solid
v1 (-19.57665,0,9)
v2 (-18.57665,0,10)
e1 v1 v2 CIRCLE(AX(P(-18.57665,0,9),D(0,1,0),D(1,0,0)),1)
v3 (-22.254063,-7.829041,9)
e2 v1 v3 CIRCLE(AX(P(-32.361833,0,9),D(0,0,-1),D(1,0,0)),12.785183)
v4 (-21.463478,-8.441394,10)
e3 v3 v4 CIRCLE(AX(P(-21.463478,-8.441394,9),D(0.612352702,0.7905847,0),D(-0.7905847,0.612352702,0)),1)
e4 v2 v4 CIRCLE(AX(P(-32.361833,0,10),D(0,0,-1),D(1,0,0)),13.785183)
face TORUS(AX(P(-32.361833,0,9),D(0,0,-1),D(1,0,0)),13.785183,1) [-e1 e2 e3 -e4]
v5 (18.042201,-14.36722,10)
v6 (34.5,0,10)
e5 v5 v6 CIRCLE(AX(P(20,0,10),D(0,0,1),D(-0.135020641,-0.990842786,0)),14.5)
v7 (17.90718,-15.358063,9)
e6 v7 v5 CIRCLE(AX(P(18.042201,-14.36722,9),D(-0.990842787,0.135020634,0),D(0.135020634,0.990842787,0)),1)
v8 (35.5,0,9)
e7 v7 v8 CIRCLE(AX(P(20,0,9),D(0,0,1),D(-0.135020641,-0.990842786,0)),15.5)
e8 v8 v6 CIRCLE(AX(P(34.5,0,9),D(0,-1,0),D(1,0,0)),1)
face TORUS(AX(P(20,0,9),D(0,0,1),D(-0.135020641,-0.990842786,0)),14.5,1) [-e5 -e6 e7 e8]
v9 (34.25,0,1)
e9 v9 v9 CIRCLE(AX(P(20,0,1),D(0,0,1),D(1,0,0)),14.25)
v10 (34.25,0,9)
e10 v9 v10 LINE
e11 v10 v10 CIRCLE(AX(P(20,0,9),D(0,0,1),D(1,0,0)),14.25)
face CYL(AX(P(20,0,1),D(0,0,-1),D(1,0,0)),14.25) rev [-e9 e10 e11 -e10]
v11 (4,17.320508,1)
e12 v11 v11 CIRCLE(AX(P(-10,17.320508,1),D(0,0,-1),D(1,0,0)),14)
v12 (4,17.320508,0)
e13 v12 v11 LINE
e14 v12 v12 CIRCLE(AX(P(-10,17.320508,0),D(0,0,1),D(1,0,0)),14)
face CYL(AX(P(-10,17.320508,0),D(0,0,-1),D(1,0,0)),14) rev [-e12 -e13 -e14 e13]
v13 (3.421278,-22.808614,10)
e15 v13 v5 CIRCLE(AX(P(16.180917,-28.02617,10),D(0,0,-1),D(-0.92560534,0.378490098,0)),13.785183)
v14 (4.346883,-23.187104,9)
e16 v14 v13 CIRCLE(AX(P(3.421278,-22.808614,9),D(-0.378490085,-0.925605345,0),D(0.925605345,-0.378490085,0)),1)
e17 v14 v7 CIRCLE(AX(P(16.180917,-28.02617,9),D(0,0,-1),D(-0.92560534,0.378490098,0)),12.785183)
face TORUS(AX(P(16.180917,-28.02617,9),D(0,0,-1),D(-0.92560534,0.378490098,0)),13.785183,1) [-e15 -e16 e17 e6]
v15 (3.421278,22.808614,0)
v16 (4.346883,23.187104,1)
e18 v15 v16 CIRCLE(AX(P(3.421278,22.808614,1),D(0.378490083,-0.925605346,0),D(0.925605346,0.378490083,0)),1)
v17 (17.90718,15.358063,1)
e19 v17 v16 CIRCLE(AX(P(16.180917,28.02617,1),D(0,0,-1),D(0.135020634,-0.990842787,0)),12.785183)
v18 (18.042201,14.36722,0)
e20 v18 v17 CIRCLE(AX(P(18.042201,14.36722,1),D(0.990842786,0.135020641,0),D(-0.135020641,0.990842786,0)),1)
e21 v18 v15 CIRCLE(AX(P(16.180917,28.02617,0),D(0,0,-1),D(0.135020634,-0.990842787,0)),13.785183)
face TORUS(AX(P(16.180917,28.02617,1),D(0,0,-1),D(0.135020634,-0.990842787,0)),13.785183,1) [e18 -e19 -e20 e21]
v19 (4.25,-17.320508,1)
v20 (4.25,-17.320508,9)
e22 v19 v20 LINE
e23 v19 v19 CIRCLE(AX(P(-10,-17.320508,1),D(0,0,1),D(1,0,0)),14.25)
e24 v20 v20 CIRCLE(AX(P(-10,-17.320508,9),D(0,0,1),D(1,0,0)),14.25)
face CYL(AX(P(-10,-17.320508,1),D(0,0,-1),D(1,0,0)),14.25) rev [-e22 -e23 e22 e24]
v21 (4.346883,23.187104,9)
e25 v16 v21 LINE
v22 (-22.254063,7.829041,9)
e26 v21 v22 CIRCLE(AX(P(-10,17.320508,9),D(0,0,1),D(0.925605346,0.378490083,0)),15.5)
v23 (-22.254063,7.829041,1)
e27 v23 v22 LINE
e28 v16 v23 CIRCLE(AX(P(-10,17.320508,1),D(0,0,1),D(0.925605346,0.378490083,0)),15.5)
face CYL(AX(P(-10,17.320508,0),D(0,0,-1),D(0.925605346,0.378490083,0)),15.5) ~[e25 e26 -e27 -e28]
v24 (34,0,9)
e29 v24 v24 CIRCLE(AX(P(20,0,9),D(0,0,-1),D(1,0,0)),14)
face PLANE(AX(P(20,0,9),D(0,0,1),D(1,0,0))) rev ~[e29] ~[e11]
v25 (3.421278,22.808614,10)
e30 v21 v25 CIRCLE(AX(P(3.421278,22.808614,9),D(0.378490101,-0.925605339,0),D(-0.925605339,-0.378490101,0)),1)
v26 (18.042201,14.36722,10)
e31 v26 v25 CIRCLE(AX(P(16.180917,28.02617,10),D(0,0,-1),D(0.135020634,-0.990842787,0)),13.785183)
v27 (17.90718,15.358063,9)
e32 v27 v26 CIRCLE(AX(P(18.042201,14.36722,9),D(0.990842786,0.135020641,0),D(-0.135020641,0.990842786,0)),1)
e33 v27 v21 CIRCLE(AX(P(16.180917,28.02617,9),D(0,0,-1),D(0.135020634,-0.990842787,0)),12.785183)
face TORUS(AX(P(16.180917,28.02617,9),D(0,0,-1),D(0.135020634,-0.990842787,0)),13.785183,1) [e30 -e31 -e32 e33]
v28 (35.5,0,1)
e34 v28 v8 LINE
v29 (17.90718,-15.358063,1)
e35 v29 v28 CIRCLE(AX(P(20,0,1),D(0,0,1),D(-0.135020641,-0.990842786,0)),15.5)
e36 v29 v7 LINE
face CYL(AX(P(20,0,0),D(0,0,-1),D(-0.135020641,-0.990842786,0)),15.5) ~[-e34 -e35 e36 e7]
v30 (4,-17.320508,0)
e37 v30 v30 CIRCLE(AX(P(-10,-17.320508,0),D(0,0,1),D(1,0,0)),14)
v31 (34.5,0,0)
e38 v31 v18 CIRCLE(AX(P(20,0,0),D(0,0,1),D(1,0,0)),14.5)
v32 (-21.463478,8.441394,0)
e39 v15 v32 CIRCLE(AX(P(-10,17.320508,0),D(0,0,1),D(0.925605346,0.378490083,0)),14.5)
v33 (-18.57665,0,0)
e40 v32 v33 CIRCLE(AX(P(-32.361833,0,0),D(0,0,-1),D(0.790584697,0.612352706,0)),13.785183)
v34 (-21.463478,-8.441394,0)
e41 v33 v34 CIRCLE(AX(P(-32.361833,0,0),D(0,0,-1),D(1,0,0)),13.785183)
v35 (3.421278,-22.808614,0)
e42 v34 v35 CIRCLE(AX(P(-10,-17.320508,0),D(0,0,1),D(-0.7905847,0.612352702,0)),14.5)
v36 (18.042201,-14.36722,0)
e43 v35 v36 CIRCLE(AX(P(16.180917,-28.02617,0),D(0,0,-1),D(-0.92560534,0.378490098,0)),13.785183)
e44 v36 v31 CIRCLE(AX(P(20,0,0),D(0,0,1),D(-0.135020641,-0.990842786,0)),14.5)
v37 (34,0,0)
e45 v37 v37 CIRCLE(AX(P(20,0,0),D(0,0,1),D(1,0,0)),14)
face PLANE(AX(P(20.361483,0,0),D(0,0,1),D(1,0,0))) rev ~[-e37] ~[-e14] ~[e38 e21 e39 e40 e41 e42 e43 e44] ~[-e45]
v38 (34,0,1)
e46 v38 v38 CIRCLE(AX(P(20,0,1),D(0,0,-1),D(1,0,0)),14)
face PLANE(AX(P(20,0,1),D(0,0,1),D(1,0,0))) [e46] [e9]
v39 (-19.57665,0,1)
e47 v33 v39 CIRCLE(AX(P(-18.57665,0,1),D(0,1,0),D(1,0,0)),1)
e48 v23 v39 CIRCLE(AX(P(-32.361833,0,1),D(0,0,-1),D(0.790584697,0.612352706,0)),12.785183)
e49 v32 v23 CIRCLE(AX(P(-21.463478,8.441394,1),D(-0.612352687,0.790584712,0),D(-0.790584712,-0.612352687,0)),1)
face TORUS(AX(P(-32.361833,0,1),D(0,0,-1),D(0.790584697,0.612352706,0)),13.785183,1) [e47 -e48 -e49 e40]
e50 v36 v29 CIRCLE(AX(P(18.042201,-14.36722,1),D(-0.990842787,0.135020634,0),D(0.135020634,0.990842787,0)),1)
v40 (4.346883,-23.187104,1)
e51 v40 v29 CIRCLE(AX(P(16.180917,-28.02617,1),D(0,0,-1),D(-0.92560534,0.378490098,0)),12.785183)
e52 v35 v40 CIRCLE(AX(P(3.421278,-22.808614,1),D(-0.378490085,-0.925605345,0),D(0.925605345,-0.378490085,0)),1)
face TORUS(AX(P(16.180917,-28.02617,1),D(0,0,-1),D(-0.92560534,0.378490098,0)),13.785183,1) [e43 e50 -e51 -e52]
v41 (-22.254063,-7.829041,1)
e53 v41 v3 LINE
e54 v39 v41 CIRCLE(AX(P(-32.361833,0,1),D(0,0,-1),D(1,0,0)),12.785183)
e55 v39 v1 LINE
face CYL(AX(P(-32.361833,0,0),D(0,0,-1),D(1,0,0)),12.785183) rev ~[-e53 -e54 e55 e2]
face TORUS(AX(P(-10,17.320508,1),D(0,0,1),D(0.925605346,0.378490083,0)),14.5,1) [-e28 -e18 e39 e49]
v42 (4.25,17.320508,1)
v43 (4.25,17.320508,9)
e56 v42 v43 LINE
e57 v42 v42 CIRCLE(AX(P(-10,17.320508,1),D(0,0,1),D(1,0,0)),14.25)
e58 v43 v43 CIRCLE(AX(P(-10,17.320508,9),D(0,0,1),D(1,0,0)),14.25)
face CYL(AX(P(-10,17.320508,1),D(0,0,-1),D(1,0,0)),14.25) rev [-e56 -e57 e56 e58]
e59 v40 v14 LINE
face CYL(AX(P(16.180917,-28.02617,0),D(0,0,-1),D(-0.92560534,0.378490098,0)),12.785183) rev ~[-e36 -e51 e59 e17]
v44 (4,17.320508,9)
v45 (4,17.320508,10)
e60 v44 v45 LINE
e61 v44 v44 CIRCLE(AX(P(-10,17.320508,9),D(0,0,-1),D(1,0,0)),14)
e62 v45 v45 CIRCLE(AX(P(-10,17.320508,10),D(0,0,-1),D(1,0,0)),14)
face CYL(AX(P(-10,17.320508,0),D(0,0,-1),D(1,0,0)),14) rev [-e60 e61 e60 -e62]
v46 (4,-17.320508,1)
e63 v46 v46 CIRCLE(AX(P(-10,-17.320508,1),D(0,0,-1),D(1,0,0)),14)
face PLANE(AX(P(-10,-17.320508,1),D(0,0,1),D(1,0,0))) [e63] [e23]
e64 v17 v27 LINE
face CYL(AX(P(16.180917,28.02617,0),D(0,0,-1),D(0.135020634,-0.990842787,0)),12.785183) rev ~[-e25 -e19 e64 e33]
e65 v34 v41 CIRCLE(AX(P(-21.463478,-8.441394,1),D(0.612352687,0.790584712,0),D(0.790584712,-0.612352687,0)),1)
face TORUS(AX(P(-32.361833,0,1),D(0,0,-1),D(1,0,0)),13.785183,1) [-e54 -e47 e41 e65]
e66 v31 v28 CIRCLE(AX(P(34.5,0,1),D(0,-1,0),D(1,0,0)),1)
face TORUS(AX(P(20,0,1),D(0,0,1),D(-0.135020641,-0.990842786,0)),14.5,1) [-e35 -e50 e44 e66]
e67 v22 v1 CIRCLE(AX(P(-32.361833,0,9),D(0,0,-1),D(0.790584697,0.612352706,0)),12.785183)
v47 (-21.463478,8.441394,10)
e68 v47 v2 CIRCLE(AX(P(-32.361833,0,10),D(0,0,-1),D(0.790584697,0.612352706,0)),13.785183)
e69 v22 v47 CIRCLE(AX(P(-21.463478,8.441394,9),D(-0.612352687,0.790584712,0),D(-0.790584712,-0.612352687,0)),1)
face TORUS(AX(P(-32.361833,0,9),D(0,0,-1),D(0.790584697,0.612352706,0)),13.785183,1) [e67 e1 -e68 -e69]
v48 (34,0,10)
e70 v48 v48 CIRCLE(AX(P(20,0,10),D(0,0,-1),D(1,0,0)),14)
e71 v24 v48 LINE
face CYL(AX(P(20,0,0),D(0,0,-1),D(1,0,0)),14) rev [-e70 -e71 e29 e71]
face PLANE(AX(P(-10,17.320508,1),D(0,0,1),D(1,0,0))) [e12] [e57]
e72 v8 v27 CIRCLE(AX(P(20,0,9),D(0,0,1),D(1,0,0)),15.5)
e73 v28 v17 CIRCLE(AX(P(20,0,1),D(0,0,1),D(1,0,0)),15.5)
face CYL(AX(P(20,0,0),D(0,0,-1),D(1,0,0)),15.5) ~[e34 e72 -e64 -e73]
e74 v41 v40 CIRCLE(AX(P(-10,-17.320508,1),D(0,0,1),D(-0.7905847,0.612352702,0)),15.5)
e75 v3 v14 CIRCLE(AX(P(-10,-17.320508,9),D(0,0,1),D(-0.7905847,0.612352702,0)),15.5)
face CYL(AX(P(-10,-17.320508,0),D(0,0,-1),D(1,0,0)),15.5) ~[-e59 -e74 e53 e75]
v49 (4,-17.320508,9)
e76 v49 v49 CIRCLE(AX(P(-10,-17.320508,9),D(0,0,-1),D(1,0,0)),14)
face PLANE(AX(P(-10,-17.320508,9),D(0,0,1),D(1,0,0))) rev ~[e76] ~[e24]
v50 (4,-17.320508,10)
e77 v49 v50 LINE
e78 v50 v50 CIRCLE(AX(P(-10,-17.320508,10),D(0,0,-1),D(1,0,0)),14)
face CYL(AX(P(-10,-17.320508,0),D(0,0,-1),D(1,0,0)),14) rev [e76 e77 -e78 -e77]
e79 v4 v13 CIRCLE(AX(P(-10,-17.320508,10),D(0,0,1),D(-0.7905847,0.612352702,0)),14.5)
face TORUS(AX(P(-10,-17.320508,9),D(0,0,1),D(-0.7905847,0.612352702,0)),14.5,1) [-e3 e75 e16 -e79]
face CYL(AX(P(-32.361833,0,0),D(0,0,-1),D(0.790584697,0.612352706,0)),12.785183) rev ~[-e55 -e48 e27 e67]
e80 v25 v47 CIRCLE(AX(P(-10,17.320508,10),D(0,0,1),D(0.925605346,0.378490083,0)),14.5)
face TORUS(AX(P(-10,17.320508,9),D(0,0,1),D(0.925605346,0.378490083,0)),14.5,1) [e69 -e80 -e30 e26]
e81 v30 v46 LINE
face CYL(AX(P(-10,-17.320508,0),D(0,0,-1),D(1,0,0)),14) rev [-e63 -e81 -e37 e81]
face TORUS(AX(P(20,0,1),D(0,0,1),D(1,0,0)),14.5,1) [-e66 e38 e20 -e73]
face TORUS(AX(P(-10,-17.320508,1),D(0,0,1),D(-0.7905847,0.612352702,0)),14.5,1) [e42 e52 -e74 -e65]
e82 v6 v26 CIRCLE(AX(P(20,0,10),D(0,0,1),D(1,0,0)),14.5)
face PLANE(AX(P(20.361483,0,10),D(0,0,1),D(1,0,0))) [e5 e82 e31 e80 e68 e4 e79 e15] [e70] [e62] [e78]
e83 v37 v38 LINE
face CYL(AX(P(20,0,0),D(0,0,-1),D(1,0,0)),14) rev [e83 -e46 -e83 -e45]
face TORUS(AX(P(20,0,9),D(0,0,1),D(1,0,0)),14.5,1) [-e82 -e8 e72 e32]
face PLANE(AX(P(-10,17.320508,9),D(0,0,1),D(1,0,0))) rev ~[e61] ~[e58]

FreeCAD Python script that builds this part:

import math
import FreeCAD as App
import Part
import Sketcher

V = App.Vector
Q = App.Units.Quantity


def edges_at(feature, points):
    """Names of the edges that pass closest to the given points."""
    edges = feature.Shape.Edges
    near = lambda p: min(range(len(edges)), key=lambda i: edges[i].distToShape(Part.Vertex(*p))[0])
    return sorted({f"Edge{near(p) + 1}" for p in points})

doc = App.newDocument("Part")
body = doc.addObject("PartDesign::Body", "Body")

sketch1 = body.newObject("Sketcher::SketchObject", "Sketch")
sketch1.AttachmentSupport = (doc.getObject("XY_Plane"), [""])
sketch1.MapMode = "FlatFace"
sketch1.addGeometry(Part.ArcOfCircle(Part.Circle(V(16, -28, 0), V(0, 0, 1), 13), math.radians(82), math.radians(158)), False)
sketch1.addGeometry(Part.ArcOfCircle(Part.Circle(V(20, 0, 0), V(0, 0, 1), 16), math.radians(-98), math.radians(0)), False)
sketch1.addGeometry(Part.ArcOfCircle(Part.Circle(V(20, 0, 0), V(0, 0, 1), 16), math.radians(0), math.radians(98)), False)
sketch1.addGeometry(Part.ArcOfCircle(Part.Circle(V(16, 28, 0), V(0, 0, 1), 13), math.radians(-158), math.radians(-82)), False)
sketch1.addGeometry(Part.ArcOfCircle(Part.Circle(V(-10, 17, 0), V(0, 0, 1), 16), math.radians(22), math.radians(218)), False)
sketch1.addGeometry(Part.ArcOfCircle(Part.Circle(V(-32, 0, 0), V(0, 0, 1), 13), math.radians(0), math.radians(38)), False)
sketch1.addGeometry(Part.ArcOfCircle(Part.Circle(V(-32, 0, 0), V(0, 0, 1), 13), math.radians(-38), math.radians(0)), False)
sketch1.addGeometry(Part.ArcOfCircle(Part.Circle(V(-10, -17, 0), V(0, 0, 1), 16), math.radians(142), math.radians(338)), False)
sketch1.addConstraint(Sketcher.Constraint("Tangent", 0, 1, 1, 1))
sketch1.addConstraint(Sketcher.Constraint("Tangent", 1, 2, 2, 1))
sketch1.addConstraint(Sketcher.Constraint("Tangent", 2, 2, 3, 2))
sketch1.addConstraint(Sketcher.Constraint("Tangent", 3, 1, 4, 1))
sketch1.addConstraint(Sketcher.Constraint("Tangent", 4, 2, 5, 2))
sketch1.addConstraint(Sketcher.Constraint("Tangent", 5, 1, 6, 2))
sketch1.addConstraint(Sketcher.Constraint("Tangent", 6, 1, 7, 1))
sketch1.addConstraint(Sketcher.Constraint("Tangent", 7, 2, 0, 2))
sketch1.addConstraint(Sketcher.Constraint("Equal", 1, 2))
sketch1.addConstraint(Sketcher.Constraint("Equal", 0, 3))
sketch1.addConstraint(Sketcher.Constraint("Equal", 2, 4))
sketch1.addConstraint(Sketcher.Constraint("Equal", 3, 5))
sketch1.addConstraint(Sketcher.Constraint("Equal", 5, 6))
sketch1.addConstraint(Sketcher.Constraint("Equal", 4, 7))
sketch1.addConstraint(Sketcher.Constraint("Symmetric", 0, 3, 3, 3, -1))
sketch1.addConstraint(Sketcher.Constraint("PointOnObject", 5, 3, -1))
sketch1.addConstraint(Sketcher.Constraint("PointOnObject", 1, 2, -1))
sketch1.addConstraint(Sketcher.Constraint("PointOnObject", 5, 1, -1))
sketch1.addConstraint(Sketcher.Constraint("Radius", 1, Q("15.5 mm")))
sketch1.addConstraint(Sketcher.Constraint("DistanceX", -1, 1, 1, 3, Q("20 mm")))
sketch1.addConstraint(Sketcher.Constraint("DistanceX", 4, 3, -1, 1, Q("10 mm")))
sketch1.addConstraint(Sketcher.Constraint("Radius", 0, Q("12.785183 mm")))
sketch1.addConstraint(Sketcher.Constraint("DistanceY", 0, 3, -1, 1, Q("28.02617 mm")))
pad1 = body.newObject("PartDesign::Pad", "Pad")
pad1.Profile = sketch1
pad1.Length = 10

sketch2 = body.newObject("Sketcher::SketchObject", "Sketch001")
sketch2.AttachmentSupport = (doc.getObject("XY_Plane"), [""])
sketch2.MapMode = "FlatFace"
sketch2.addGeometry(Part.Circle(V(20, 0, 0), V(0, 0, 1), 14), False)
sketch2.addGeometry(Part.Circle(V(-10, 17, 0), V(0, 0, 1), 14), False)
sketch2.addGeometry(Part.Circle(V(-10, -17, 0), V(0, 0, 1), 14), False)
sketch2.addConstraint(Sketcher.Constraint("Equal", 0, 1))
sketch2.addConstraint(Sketcher.Constraint("Equal", 1, 2))
sketch2.addConstraint(Sketcher.Constraint("Symmetric", 1, 3, 2, 3, -1))
sketch2.addConstraint(Sketcher.Constraint("PointOnObject", 0, 3, -1))
sketch2.addConstraint(Sketcher.Constraint("Diameter", 0, Q("28 mm")))
sketch2.addConstraint(Sketcher.Constraint("DistanceX", -1, 1, 0, 3, Q("20 mm")))
sketch2.addConstraint(Sketcher.Constraint("DistanceX", 1, 3, -1, 1, Q("10 mm")))
sketch2.addConstraint(Sketcher.Constraint("DistanceY", -1, 1, 1, 3, Q("17.320508 mm")))
pocket1 = body.newObject("PartDesign::Pocket", "Pocket")
pocket1.Profile = sketch2
pocket1.Type = "ThroughAll"
pocket1.Midplane = True

sketch3 = body.newObject("Sketcher::SketchObject", "Sketch002")
sketch3.AttachmentSupport = (doc.getObject("XY_Plane"), [""])
sketch3.MapMode = "FlatFace"
sketch3.AttachmentOffset = App.Placement(V(0, 0, 1), App.Rotation())
sketch3.addGeometry(Part.Circle(V(20, 0, 0), V(0, 0, 1), 14), False)
sketch3.addGeometry(Part.Circle(V(-10, 17, 0), V(0, 0, 1), 14), False)
sketch3.addGeometry(Part.Circle(V(-10, -17, 0), V(0, 0, 1), 14), False)
sketch3.addConstraint(Sketcher.Constraint("Equal", 0, 1))
sketch3.addConstraint(Sketcher.Constraint("Equal", 1, 2))
sketch3.addConstraint(Sketcher.Constraint("Symmetric", 1, 3, 2, 3, -1))
sketch3.addConstraint(Sketcher.Constraint("PointOnObject", 0, 3, -1))
sketch3.addConstraint(Sketcher.Constraint("Diameter", 0, Q("28.5 mm")))
sketch3.addConstraint(Sketcher.Constraint("DistanceX", -1, 1, 0, 3, Q("20 mm")))
sketch3.addConstraint(Sketcher.Constraint("DistanceX", 1, 3, -1, 1, Q("10 mm")))
sketch3.addConstraint(Sketcher.Constraint("DistanceY", -1, 1, 1, 3, Q("17.320508 mm")))
pocket2 = body.newObject("PartDesign::Pocket", "Pocket001")
pocket2.Profile = sketch3
pocket2.Length = 8
pocket2.Reversed = True
doc.recompute()

fillet = body.newObject("PartDesign::Fillet", "Fillet")
fillet.Base = (pocket2, edges_at(pocket2, [
    (-17.75, -30.744, 10),
    (9.788, -16.954, 10),
    (35.5, 0, 5),
    (9.788, 16.954, 10),
    (-20.265, -4.137, 10),
    (-17.75, 30.744, 10),
]))
fillet.Radius = 1
doc.recompute()

fillet2 = body.newObject("PartDesign::Fillet", "Fillet001")
fillet2.Base = (fillet, edges_at(fillet, [
    (-17.75, 30.744, 0),
    (9.788, 16.954, 0),
    (30.193, -11.677, 0),
    (9.788, -16.954, 0),
    (-17.75, -30.744, 0),
    (-20.265, -4.137, 0),
]))
fillet2.Radius = 1

doc.recompute()
